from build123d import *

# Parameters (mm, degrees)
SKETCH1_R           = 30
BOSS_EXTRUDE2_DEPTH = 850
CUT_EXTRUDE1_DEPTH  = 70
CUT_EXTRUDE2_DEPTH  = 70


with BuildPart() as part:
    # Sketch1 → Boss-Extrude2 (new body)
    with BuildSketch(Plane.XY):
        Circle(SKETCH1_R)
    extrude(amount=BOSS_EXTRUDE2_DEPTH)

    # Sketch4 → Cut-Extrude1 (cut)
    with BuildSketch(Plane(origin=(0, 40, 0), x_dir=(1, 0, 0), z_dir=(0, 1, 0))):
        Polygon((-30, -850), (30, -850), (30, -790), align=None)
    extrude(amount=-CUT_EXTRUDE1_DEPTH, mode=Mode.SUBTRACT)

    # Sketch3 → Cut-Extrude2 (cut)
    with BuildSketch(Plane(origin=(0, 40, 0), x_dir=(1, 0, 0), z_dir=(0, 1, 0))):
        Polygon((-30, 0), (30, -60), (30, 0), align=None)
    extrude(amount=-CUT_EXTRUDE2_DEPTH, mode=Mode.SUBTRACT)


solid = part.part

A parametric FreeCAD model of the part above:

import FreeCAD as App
import Part
import Sketcher


def add_polygon(sketch, points):
    """Adds a closed chain of lines whose ends are joined by coincident constraints."""
    first, n = sketch.GeometryCount, len(points)
    for a, b in zip(points, points[1:] + points[:1]):
        sketch.addGeometry(Part.LineSegment(App.Vector(*a, 0), App.Vector(*b, 0)), False)
    for i in range(n):
        sketch.addConstraint(Sketcher.Constraint("Coincident", first + i, 2, first + (i + 1) % n, 1))

doc = App.newDocument("Part")
body = doc.addObject("PartDesign::Body", "Body")

# Sketch on XY plane
sketch1 = body.newObject("Sketcher::SketchObject", "Sketch")
sketch1.AttachmentSupport = (doc.getObject("XY_Plane"), [""])
sketch1.MapMode = "FlatFace"
sketch1.addGeometry(Part.Circle(App.Vector(0, 0, 0), App.Vector(0, 0, 1), 30), False)
sketch1.addConstraint(Sketcher.Constraint("Coincident", 0, 3, -1, 1))
sketch1.addConstraint(Sketcher.Constraint("Diameter", 0, 60.0))
pad1 = body.newObject("PartDesign::Pad", "Pad")
pad1.Profile = sketch1
pad1.Length = 850

# Sketch on XZ plane
sketch2 = body.newObject("Sketcher::SketchObject", "Sketch001")
sketch2.AttachmentSupport = (doc.getObject("XZ_Plane"), [""])
sketch2.MapMode = "FlatFace"
sketch2.AttachmentOffset = App.Placement(App.Vector(0, 0, -40), App.Rotation())
add_polygon(sketch2, [(-30, 850), (30, 850), (30, 790)])  # lines 0-2
sketch2.addConstraint(Sketcher.Constraint("Horizontal", 0))
sketch2.addConstraint(Sketcher.Constraint("Vertical", 1))
sketch2.addConstraint(Sketcher.Constraint("Equal", 0, 1))
sketch2.addConstraint(Sketcher.Constraint("DistanceX", 0, 1, 0, 2, 60.0))
sketch2.addConstraint(Sketcher.Constraint("DistanceX", -1, 1, 0, 2, 30.0))
sketch2.addConstraint(Sketcher.Constraint("DistanceY", -1, 1, 0, 2, 850.0))
pocket1 = body.newObject("PartDesign::Pocket", "Pocket")
pocket1.Profile = sketch2
pocket1.Length = 70
pocket1.Reversed = True

# Sketch on XZ plane
sketch3 = body.newObject("Sketcher::SketchObject", "Sketch002")
sketch3.AttachmentSupport = (doc.getObject("XZ_Plane"), [""])
sketch3.MapMode = "FlatFace"
sketch3.AttachmentOffset = App.Placement(App.Vector(0, 0, -40), App.Rotation())
add_polygon(sketch3, [(-30, 0), (30, 60), (30, 0)])  # lines 0-2
sketch3.addConstraint(Sketcher.Constraint("Vertical", 1))
sketch3.addConstraint(Sketcher.Constraint("Horizontal", 2))
sketch3.addConstraint(Sketcher.Constraint("Symmetric", 1, 2, 2, 2, -1, 1))
sketch3.addConstraint(Sketcher.Constraint("Equal", 2, 1))
sketch3.addConstraint(Sketcher.Constraint("DistanceX", 2, 2, 2, 1, 60.0))
pocket2 = body.newObject("PartDesign::Pocket", "Pocket001")
pocket2.Profile = sketch3
pocket2.Length = 70
pocket2.Reversed = True

doc.recompute()
